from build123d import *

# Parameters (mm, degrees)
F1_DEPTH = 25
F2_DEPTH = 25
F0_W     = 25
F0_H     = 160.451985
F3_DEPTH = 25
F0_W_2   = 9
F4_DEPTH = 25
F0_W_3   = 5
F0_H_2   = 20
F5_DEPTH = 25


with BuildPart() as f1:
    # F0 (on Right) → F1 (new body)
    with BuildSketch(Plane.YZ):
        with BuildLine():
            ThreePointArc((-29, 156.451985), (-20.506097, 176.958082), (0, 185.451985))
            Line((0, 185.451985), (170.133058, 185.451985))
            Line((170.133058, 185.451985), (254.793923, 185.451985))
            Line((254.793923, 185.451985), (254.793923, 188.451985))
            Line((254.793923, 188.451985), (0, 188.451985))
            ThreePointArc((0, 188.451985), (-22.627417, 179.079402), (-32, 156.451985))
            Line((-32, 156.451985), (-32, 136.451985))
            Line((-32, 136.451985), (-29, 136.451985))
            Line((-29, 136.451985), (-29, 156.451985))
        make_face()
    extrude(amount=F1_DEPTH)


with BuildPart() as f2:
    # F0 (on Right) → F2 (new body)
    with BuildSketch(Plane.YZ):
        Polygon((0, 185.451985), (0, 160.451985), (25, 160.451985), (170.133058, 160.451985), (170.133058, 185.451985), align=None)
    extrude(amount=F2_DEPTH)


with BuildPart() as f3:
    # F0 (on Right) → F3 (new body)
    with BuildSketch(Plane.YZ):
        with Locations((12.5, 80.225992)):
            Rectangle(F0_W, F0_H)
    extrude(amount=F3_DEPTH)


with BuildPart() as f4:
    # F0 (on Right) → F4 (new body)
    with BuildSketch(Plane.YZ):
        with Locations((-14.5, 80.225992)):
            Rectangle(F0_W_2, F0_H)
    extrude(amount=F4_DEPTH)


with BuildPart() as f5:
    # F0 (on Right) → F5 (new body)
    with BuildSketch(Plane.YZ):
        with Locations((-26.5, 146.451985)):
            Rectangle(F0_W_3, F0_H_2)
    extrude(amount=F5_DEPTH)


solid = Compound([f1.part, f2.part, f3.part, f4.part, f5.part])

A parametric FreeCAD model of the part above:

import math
import FreeCAD as App
import Part
import Sketcher


def add_polygon(sketch, points):
    """Adds a closed chain of lines whose ends are joined by coincident constraints."""
    first, n = sketch.GeometryCount, len(points)
    for a, b in zip(points, points[1:] + points[:1]):
        sketch.addGeometry(Part.LineSegment(App.Vector(*a, 0), App.Vector(*b, 0)), False)
    for i in range(n):
        sketch.addConstraint(Sketcher.Constraint("Coincident", first + i, 2, first + (i + 1) % n, 1))

doc = App.newDocument("Part")
body = doc.addObject("PartDesign::Body", "Body")

sketch1 = doc.addObject("Sketcher::SketchObject", "Sketch")
body.addObject(sketch1)
sketch1.AttachmentSupport = (doc.YZ_Plane, [""])
sketch1.MapMode = "FlatFace"
sketch1.addGeometry([
    Part.ArcOfCircle(Part.Circle(App.Vector(0, 156.5, 0), App.Vector(0, 0, 1), 29), math.radians(90), math.radians(180)),
    Part.LineSegment(App.Vector(0, 185.5, 0), App.Vector(254.8, 185.5, 0)),
    Part.LineSegment(App.Vector(254.8, 185.5, 0), App.Vector(254.8, 188.5, 0)),
    Part.LineSegment(App.Vector(254.8, 188.5, 0), App.Vector(0, 188.5, 0)),
    Part.ArcOfCircle(Part.Circle(App.Vector(0, 156.5, 0), App.Vector(0, 0, 1), 32), math.radians(90), math.radians(180)),
    Part.LineSegment(App.Vector(-32, 156.5, 0), App.Vector(-32, 136.5, 0)),
    Part.LineSegment(App.Vector(-32, 136.5, 0), App.Vector(-29, 136.5, 0)),
    Part.LineSegment(App.Vector(-29, 136.5, 0), App.Vector(-29, 156.5, 0)),
], False)
sketch1.addConstraint([
    Sketcher.Constraint("Tangent", 0, 1, 1, 1),
    Sketcher.Constraint("Coincident", 1, 2, 2, 1),
    Sketcher.Constraint("Coincident", 2, 2, 3, 1),
    Sketcher.Constraint("Tangent", 3, 2, 4, 1),
    Sketcher.Constraint("Tangent", 4, 2, 5, 1),
    Sketcher.Constraint("Coincident", 5, 2, 6, 1),
    Sketcher.Constraint("Coincident", 6, 2, 7, 1),
    Sketcher.Constraint("Tangent", 7, 2, 0, 2),
    Sketcher.Constraint("Horizontal", 1),
    Sketcher.Constraint("Vertical", 2),
    Sketcher.Constraint("Horizontal", 3),
    Sketcher.Constraint("Vertical", 5),
    Sketcher.Constraint("Horizontal", 6),
    Sketcher.Constraint("Vertical", 7),
    Sketcher.Constraint("Coincident", 4, 3, 0, 3),
    Sketcher.Constraint("PointOnObject", 0, 3, -2),
    Sketcher.Constraint("Radius", 0, 28.999999),
    Sketcher.Constraint("Radius", 4, 32.0),
    Sketcher.Constraint("DistanceY", 5, 2, 5, 1, 20.0),
    Sketcher.Constraint("DistanceX", 1, 1, 1, 2, 254.793923),
    Sketcher.Constraint("DistanceY", -1, 1, 0, 3, 156.451986),
])
pad1 = doc.addObject("PartDesign::Pad", "Pad")
body.addObject(pad1)
pad1.Profile = sketch1
pad1.Length = 25
body2 = doc.addObject("PartDesign::Body", "Body001")

sketch2 = doc.addObject("Sketcher::SketchObject", "Sketch001")
body2.addObject(sketch2)
sketch2.AttachmentSupport = (doc.getObject("YZ_Plane001"), [""])
sketch2.MapMode = "FlatFace"
add_polygon(sketch2, [(0, 185), (0, 160), (170, 160), (170, 185)])
sketch2.addConstraint([
    Sketcher.Constraint("Vertical", 0),
    Sketcher.Constraint("Horizontal", 1),
    Sketcher.Constraint("Vertical", 2),
    Sketcher.Constraint("Horizontal", 3),
    Sketcher.Constraint("PointOnObject", 0, 2, -2),
    Sketcher.Constraint("DistanceY", 0, 2, 0, 1, 25.0),
    Sketcher.Constraint("DistanceX", 1, 1, 1, 2, 170.133058),
    Sketcher.Constraint("DistanceY", -1, 1, 0, 2, 160.451985),
])
pad2 = doc.addObject("PartDesign::Pad", "Pad001")
body2.addObject(pad2)
pad2.Profile = sketch2
pad2.Length = 25
body3 = doc.addObject("PartDesign::Body", "Body002")

sketch3 = doc.addObject("Sketcher::SketchObject", "Sketch002")
body3.addObject(sketch3)
sketch3.AttachmentSupport = (doc.getObject("YZ_Plane002"), [""])
sketch3.MapMode = "FlatFace"
add_polygon(sketch3, [(0, 160), (0, 0), (25, 0), (25, 160)])
sketch3.addConstraint([
    Sketcher.Constraint("Vertical", 0),
    Sketcher.Constraint("Horizontal", 1),
    Sketcher.Constraint("Vertical", 2),
    Sketcher.Constraint("Horizontal", 3),
    Sketcher.Constraint("Coincident", 0, 2, -1, 1),
    Sketcher.Constraint("DistanceX", 1, 1, 1, 2, 25.0),
    Sketcher.Constraint("DistanceY", 0, 2, 0, 1, 160.451985),
])
pad3 = doc.addObject("PartDesign::Pad", "Pad002")
body3.addObject(pad3)
pad3.Profile = sketch3
pad3.Length = 25
body4 = doc.addObject("PartDesign::Body", "Body003")

sketch4 = doc.addObject("Sketcher::SketchObject", "Sketch003")
body4.addObject(sketch4)
sketch4.AttachmentSupport = (doc.getObject("YZ_Plane003"), [""])
sketch4.MapMode = "FlatFace"
add_polygon(sketch4, [(-19, 160), (-19, 0), (-10, 0), (-10, 160)])
sketch4.addConstraint([
    Sketcher.Constraint("Vertical", 0),
    Sketcher.Constraint("Horizontal", 1),
    Sketcher.Constraint("Vertical", 2),
    Sketcher.Constraint("Horizontal", 3),
    Sketcher.Constraint("PointOnObject", 0, 2, -1),
    Sketcher.Constraint("DistanceX", 1, 1, 1, 2, 9.0),
    Sketcher.Constraint("DistanceX", 0, 2, -1, 1, 19.0),
    Sketcher.Constraint("DistanceY", 0, 2, 0, 1, 160.451985),
])
pad4 = doc.addObject("PartDesign::Pad", "Pad003")
body4.addObject(pad4)
pad4.Profile = sketch4
pad4.Length = 25
body5 = doc.addObject("PartDesign::Body", "Body004")

sketch5 = doc.addObject("Sketcher::SketchObject", "Sketch004")
body5.addObject(sketch5)
sketch5.AttachmentSupport = (doc.getObject("YZ_Plane004"), [""])
sketch5.MapMode = "FlatFace"
add_polygon(sketch5, [(-29, 156), (-29, 136), (-24, 136), (-24, 156)])
sketch5.addConstraint([
    Sketcher.Constraint("Vertical", 0),
    Sketcher.Constraint("Horizontal", 1),
    Sketcher.Constraint("Vertical", 2),
    Sketcher.Constraint("Horizontal", 3),
    Sketcher.Constraint("DistanceX", 1, 1, 1, 2, 5.0),
    Sketcher.Constraint("DistanceY", 0, 2, 0, 1, 20.0),
    Sketcher.Constraint("DistanceX", 0, 2, -1, 1, 29.0),
    Sketcher.Constraint("DistanceY", -1, 1, 0, 2, 136.451985),
])
pad5 = doc.addObject("PartDesign::Pad", "Pad004")
body5.addObject(pad5)
pad5.Profile = sketch5
pad5.Length = 25

doc.recompute()
